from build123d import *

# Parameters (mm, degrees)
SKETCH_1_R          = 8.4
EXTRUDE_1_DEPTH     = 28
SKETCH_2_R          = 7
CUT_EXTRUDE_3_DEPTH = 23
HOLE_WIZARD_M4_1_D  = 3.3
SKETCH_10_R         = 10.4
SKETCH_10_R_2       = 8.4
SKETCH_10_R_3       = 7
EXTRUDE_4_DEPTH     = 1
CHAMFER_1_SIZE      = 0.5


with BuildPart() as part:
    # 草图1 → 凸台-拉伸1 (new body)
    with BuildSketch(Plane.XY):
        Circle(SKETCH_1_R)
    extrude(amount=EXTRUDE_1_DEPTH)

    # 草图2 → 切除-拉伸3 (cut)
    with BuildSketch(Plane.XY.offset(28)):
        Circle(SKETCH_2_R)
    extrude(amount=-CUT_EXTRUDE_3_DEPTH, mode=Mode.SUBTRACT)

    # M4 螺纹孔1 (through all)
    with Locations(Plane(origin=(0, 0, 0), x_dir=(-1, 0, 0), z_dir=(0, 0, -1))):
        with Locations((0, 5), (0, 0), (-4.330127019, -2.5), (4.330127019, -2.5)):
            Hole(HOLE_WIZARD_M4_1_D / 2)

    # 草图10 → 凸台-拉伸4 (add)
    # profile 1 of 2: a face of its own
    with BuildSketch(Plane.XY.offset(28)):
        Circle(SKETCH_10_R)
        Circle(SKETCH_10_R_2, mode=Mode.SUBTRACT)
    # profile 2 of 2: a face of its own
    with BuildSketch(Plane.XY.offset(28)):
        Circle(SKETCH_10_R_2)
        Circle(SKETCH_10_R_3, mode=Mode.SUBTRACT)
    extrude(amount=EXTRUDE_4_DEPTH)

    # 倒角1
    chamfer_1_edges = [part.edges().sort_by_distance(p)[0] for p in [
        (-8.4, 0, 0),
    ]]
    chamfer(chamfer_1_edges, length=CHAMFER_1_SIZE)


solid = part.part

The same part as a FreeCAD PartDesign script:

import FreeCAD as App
import Part
import Sketcher

V = App.Vector


def edges_at(feature, points):
    """Names of the edges that pass closest to the given points."""
    edges = feature.Shape.Edges
    near = lambda p: min(range(len(edges)), key=lambda i: edges[i].distToShape(Part.Vertex(*p))[0])
    return sorted({f"Edge{near(p) + 1}" for p in points})

doc = App.newDocument("Part")
params = doc.addObject("Spreadsheet::Sheet", "Params")
for row, (alias, value) in enumerate([
    ("sketch1_diameter", "16.8 mm"),
    ("pad1_length", "28 mm"),
    ("sketch2_diameter", "14 mm"),
    ("pocket1_length", "23 mm"),
    ("sketch3_diameter", "3.3 mm"),
    ("hole_diameter", "3.3 mm"),
    ("sketch4_diameter", "14 mm"),
    ("sketch4_diameter2", "20.8 mm"),
    ("pad2_length", "1 mm"),
    ("chamfer_size", "0.5 mm"),
], start=1):
    params.set(f"A{row}", alias)
    params.set(f"B{row}", "=" + value)
    params.setAlias(f"B{row}", alias)

body = doc.addObject("PartDesign::Body", "Body")

# Sketch on XY plane
sketch1 = doc.addObject("Sketcher::SketchObject", "Sketch")
body.addObject(sketch1)
sketch1.AttachmentSupport = (doc.XY_Plane, [""])
sketch1.MapMode = "FlatFace"
sketch1.addGeometry(Part.Circle(V(0, 0, 0), V(0, 0, 1), 8), False)
sketch1.addConstraint([
    Sketcher.Constraint("Coincident", 0, 3, -1, 1),
    Sketcher.Constraint("Diameter", 0, 16.8),
])
sketch1.setExpression("Constraints[1]", "Params.sketch1_diameter")
pad1 = doc.addObject("PartDesign::Pad", "Pad")
body.addObject(pad1)
pad1.Profile = sketch1
pad1.setExpression("Length", "Params.pad1_length")

# Sketch on XY plane
sketch2 = doc.addObject("Sketcher::SketchObject", "Sketch001")
body.addObject(sketch2)
sketch2.AttachmentSupport = (doc.XY_Plane, [""])
sketch2.MapMode = "FlatFace"
sketch2.AttachmentOffset = App.Placement(V(0, 0, 28), App.Rotation())
sketch2.addGeometry(Part.Circle(V(0, 0, 0), V(0, 0, 1), 7), False)
sketch2.addConstraint([
    Sketcher.Constraint("Coincident", 0, 3, -1, 1),
    Sketcher.Constraint("Diameter", 0, 14.0),
])
sketch2.setExpression("Constraints[1]", "Params.sketch2_diameter")
pocket1 = doc.addObject("PartDesign::Pocket", "Pocket")
body.addObject(pocket1)
pocket1.Profile = sketch2
pocket1.setExpression("Length", "Params.pocket1_length")

# Sketch on XY plane
sketch3 = doc.addObject("Sketcher::SketchObject", "Sketch002")
body.addObject(sketch3)
sketch3.AttachmentSupport = (doc.XY_Plane, [""])
sketch3.MapMode = "FlatFace"
sketch3.addGeometry([
    Part.Circle(V(0, 5, 0), V(0, 0, 1), 1.6),
    Part.Circle(V(0, 0, 0), V(0, 0, 1), 1.6),
    Part.Circle(V(4.3, -2.5, 0), V(0, 0, 1), 1.6),
    Part.Circle(V(-4.3, -2.5, 0), V(0, 0, 1), 1.6),
], False)
sketch3.addConstraint([
    Sketcher.Constraint("Coincident", 1, 3, -1, 1),
    Sketcher.Constraint("Equal", 0, 1),
    Sketcher.Constraint("Equal", 1, 2),
    Sketcher.Constraint("Equal", 2, 3),
    Sketcher.Constraint("Symmetric", 2, 3, 3, 3, -2),
    Sketcher.Constraint("PointOnObject", 0, 3, -2),
    Sketcher.Constraint("Diameter", 0, 3.3),
    Sketcher.Constraint("DistanceY", -1, 1, 0, 3, 5.0),
    Sketcher.Constraint("DistanceY", 2, 3, -1, 1, 2.5),
    Sketcher.Constraint("DistanceX", -1, 1, 2, 3, 4.330127),
])
sketch3.setExpression("Constraints[6]", "Params.sketch3_diameter")
doc.recompute()
hole = doc.addObject("PartDesign::Hole", "Hole")
body.addObject(hole)
hole.Profile = sketch3
hole.ThreadType = "None"
hole.setExpression("Diameter", "Params.hole_diameter")
hole.DepthType = "ThroughAll"
hole.Reversed = True

# Sketch on XY plane
sketch4 = doc.addObject("Sketcher::SketchObject", "Sketch003")
body.addObject(sketch4)
sketch4.AttachmentSupport = (doc.XY_Plane, [""])
sketch4.MapMode = "FlatFace"
sketch4.AttachmentOffset = App.Placement(V(0, 0, 28), App.Rotation())
sketch4.addGeometry([
    Part.Circle(V(0, 0, 0), V(0, 0, 1), 10),
    Part.Circle(V(0, 0, 0), V(0, 0, 1), 7),
], False)
sketch4.addConstraint([
    Sketcher.Constraint("Coincident", 0, 3, -1, 1),
    Sketcher.Constraint("Coincident", 1, 3, -1, 1),
    Sketcher.Constraint("Diameter", 1, 14.0),
    Sketcher.Constraint("Diameter", 0, 20.8),
])
sketch4.setExpression("Constraints[2]", "Params.sketch4_diameter")
sketch4.setExpression("Constraints[3]", "Params.sketch4_diameter2")
pad2 = doc.addObject("PartDesign::Pad", "Pad001")
body.addObject(pad2)
pad2.Profile = sketch4
pad2.setExpression("Length", "Params.pad2_length")
doc.recompute()

chamfer = doc.addObject("PartDesign::Chamfer", "Chamfer")
body.addObject(chamfer)
chamfer.Base = (pad2, edges_at(pad2, [(-8.4, 0, 0)]))
chamfer.setExpression("Size", "Params.chamfer_size")

doc.recompute()
